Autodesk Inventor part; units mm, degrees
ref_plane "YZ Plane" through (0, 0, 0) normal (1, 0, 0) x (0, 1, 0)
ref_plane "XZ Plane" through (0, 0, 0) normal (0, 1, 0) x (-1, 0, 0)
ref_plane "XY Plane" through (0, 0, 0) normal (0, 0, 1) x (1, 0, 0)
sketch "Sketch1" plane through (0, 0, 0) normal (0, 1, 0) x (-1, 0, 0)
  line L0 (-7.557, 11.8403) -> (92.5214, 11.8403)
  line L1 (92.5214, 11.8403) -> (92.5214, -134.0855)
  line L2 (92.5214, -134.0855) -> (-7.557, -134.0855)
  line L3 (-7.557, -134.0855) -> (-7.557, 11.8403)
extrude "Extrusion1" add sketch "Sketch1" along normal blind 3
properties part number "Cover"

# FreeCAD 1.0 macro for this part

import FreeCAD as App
import Part
import Sketcher
from FreeCAD import Vector

doc = App.newDocument("Part")
body = doc.addObject("PartDesign::Body", "Body")

sketch1 = body.newObject("Sketcher::SketchObject", "Sketch")
sketch1.AttachmentSupport = (doc.getObject("XZ_Plane"), [""])
sketch1.MapMode = "FlatFace"
sketch1.addGeometry([
    Part.LineSegment(Vector(-93, 12, 0), Vector(8, 12, 0)),
    Part.LineSegment(Vector(8, 12, 0), Vector(8, -134, 0)),
    Part.LineSegment(Vector(8, -134, 0), Vector(-93, -134, 0)),
    Part.LineSegment(Vector(-93, -134, 0), Vector(-93, 12, 0)),
], False)
sketch1.addConstraint([
    Sketcher.Constraint("Coincident", 0, 2, 1, 1),
    Sketcher.Constraint("Coincident", 1, 2, 2, 1),
    Sketcher.Constraint("Coincident", 2, 2, 3, 1),
    Sketcher.Constraint("Coincident", 3, 2, 0, 1),
    Sketcher.Constraint("Horizontal", 0),
    Sketcher.Constraint("Vertical", 1),
    Sketcher.Constraint("Horizontal", 2),
    Sketcher.Constraint("Vertical", 3),
    Sketcher.Constraint("DistanceX", 0, 1, 0, 2, 100.0784),
    Sketcher.Constraint("DistanceY", 1, 2, 1, 1, 145.9258),
    Sketcher.Constraint("DistanceX", -1, 1, 0, 2, 7.557),
    Sketcher.Constraint("DistanceY", -1, 1, 0, 2, 11.8403),
])
pad1 = body.newObject("PartDesign::Pad", "Pad")
pad1.Profile = sketch1
pad1.Length = 3
pad1.Reversed = True

doc.recompute()
